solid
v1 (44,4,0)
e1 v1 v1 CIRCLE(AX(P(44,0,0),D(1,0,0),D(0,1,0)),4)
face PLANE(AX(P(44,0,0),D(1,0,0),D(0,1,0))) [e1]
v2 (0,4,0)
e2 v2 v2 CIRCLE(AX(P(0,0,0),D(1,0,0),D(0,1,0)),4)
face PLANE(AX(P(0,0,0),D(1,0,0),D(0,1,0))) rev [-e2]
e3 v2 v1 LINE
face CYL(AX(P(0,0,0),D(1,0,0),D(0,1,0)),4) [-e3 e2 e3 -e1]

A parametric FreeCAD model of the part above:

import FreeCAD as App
import Part
import Sketcher


def add_polygon(sketch, points):
    """Adds a closed chain of lines whose ends are joined by coincident constraints."""
    first, n = sketch.GeometryCount, len(points)
    for a, b in zip(points, points[1:] + points[:1]):
        sketch.addGeometry(Part.LineSegment(App.Vector(*a, 0), App.Vector(*b, 0)), False)
    for i in range(n):
        sketch.addConstraint(Sketcher.Constraint("Coincident", first + i, 2, first + (i + 1) % n, 1))

doc = App.newDocument("Part")
body = doc.addObject("PartDesign::Body", "Body")

# Sketch on XY plane
sketch1 = doc.addObject("Sketcher::SketchObject", "Sketch")
body.addObject(sketch1)
sketch1.AttachmentSupport = (doc.XY_Plane, [""])
sketch1.MapMode = "FlatFace"
add_polygon(sketch1, [(0, 4), (0, 0), (44, 0), (44, 4)])  # lines 0-3
sketch1.addConstraint([
    Sketcher.Constraint("Vertical", 0),
    Sketcher.Constraint("Horizontal", 1),
    Sketcher.Constraint("Vertical", 2),
    Sketcher.Constraint("Horizontal", 3),
    Sketcher.Constraint("Coincident", 0, 2, -1, 1),
    Sketcher.Constraint("DistanceX", 1, 1, 1, 2, 44.0),
    Sketcher.Constraint("DistanceY", 0, 2, 0, 1, 4.0),
])
revolution = doc.addObject("PartDesign::Revolution", "Revolution")
body.addObject(revolution)
revolution.Profile = sketch1
revolution.ReferenceAxis = (sketch1, ["H_Axis"])
revolution.Angle = 360

doc.recompute()
